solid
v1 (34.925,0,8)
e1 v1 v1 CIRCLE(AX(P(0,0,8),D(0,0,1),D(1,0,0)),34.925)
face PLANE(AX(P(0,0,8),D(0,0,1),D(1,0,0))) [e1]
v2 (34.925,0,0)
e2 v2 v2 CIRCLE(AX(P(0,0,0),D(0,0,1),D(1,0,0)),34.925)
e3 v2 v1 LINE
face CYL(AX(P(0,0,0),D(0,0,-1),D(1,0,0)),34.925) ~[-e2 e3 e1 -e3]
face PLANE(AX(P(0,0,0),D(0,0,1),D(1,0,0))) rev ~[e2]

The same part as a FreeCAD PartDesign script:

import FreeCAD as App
import Part
import Sketcher
from FreeCAD import Vector
Q = App.Units.Quantity

doc = App.newDocument("Part")
body = doc.addObject("PartDesign::Body", "Body")

sketch1 = body.newObject("Sketcher::SketchObject", "Sketch")
sketch1.AttachmentSupport = (doc.getObject("XY_Plane"), [""])
sketch1.MapMode = "FlatFace"
sketch1.addGeometry(Part.Circle(Vector(0, 0, 0), Vector(0, 0, 1), 34.925), False)
sketch1.addConstraint([
    Sketcher.Constraint("Coincident", 0, 3, -1, 1),
    Sketcher.Constraint("Diameter", 0, Q("69.85 mm")),
])
pad1 = body.newObject("PartDesign::Pad", "Pad")
pad1.Profile = sketch1
pad1.Length = 8

doc.recompute()
